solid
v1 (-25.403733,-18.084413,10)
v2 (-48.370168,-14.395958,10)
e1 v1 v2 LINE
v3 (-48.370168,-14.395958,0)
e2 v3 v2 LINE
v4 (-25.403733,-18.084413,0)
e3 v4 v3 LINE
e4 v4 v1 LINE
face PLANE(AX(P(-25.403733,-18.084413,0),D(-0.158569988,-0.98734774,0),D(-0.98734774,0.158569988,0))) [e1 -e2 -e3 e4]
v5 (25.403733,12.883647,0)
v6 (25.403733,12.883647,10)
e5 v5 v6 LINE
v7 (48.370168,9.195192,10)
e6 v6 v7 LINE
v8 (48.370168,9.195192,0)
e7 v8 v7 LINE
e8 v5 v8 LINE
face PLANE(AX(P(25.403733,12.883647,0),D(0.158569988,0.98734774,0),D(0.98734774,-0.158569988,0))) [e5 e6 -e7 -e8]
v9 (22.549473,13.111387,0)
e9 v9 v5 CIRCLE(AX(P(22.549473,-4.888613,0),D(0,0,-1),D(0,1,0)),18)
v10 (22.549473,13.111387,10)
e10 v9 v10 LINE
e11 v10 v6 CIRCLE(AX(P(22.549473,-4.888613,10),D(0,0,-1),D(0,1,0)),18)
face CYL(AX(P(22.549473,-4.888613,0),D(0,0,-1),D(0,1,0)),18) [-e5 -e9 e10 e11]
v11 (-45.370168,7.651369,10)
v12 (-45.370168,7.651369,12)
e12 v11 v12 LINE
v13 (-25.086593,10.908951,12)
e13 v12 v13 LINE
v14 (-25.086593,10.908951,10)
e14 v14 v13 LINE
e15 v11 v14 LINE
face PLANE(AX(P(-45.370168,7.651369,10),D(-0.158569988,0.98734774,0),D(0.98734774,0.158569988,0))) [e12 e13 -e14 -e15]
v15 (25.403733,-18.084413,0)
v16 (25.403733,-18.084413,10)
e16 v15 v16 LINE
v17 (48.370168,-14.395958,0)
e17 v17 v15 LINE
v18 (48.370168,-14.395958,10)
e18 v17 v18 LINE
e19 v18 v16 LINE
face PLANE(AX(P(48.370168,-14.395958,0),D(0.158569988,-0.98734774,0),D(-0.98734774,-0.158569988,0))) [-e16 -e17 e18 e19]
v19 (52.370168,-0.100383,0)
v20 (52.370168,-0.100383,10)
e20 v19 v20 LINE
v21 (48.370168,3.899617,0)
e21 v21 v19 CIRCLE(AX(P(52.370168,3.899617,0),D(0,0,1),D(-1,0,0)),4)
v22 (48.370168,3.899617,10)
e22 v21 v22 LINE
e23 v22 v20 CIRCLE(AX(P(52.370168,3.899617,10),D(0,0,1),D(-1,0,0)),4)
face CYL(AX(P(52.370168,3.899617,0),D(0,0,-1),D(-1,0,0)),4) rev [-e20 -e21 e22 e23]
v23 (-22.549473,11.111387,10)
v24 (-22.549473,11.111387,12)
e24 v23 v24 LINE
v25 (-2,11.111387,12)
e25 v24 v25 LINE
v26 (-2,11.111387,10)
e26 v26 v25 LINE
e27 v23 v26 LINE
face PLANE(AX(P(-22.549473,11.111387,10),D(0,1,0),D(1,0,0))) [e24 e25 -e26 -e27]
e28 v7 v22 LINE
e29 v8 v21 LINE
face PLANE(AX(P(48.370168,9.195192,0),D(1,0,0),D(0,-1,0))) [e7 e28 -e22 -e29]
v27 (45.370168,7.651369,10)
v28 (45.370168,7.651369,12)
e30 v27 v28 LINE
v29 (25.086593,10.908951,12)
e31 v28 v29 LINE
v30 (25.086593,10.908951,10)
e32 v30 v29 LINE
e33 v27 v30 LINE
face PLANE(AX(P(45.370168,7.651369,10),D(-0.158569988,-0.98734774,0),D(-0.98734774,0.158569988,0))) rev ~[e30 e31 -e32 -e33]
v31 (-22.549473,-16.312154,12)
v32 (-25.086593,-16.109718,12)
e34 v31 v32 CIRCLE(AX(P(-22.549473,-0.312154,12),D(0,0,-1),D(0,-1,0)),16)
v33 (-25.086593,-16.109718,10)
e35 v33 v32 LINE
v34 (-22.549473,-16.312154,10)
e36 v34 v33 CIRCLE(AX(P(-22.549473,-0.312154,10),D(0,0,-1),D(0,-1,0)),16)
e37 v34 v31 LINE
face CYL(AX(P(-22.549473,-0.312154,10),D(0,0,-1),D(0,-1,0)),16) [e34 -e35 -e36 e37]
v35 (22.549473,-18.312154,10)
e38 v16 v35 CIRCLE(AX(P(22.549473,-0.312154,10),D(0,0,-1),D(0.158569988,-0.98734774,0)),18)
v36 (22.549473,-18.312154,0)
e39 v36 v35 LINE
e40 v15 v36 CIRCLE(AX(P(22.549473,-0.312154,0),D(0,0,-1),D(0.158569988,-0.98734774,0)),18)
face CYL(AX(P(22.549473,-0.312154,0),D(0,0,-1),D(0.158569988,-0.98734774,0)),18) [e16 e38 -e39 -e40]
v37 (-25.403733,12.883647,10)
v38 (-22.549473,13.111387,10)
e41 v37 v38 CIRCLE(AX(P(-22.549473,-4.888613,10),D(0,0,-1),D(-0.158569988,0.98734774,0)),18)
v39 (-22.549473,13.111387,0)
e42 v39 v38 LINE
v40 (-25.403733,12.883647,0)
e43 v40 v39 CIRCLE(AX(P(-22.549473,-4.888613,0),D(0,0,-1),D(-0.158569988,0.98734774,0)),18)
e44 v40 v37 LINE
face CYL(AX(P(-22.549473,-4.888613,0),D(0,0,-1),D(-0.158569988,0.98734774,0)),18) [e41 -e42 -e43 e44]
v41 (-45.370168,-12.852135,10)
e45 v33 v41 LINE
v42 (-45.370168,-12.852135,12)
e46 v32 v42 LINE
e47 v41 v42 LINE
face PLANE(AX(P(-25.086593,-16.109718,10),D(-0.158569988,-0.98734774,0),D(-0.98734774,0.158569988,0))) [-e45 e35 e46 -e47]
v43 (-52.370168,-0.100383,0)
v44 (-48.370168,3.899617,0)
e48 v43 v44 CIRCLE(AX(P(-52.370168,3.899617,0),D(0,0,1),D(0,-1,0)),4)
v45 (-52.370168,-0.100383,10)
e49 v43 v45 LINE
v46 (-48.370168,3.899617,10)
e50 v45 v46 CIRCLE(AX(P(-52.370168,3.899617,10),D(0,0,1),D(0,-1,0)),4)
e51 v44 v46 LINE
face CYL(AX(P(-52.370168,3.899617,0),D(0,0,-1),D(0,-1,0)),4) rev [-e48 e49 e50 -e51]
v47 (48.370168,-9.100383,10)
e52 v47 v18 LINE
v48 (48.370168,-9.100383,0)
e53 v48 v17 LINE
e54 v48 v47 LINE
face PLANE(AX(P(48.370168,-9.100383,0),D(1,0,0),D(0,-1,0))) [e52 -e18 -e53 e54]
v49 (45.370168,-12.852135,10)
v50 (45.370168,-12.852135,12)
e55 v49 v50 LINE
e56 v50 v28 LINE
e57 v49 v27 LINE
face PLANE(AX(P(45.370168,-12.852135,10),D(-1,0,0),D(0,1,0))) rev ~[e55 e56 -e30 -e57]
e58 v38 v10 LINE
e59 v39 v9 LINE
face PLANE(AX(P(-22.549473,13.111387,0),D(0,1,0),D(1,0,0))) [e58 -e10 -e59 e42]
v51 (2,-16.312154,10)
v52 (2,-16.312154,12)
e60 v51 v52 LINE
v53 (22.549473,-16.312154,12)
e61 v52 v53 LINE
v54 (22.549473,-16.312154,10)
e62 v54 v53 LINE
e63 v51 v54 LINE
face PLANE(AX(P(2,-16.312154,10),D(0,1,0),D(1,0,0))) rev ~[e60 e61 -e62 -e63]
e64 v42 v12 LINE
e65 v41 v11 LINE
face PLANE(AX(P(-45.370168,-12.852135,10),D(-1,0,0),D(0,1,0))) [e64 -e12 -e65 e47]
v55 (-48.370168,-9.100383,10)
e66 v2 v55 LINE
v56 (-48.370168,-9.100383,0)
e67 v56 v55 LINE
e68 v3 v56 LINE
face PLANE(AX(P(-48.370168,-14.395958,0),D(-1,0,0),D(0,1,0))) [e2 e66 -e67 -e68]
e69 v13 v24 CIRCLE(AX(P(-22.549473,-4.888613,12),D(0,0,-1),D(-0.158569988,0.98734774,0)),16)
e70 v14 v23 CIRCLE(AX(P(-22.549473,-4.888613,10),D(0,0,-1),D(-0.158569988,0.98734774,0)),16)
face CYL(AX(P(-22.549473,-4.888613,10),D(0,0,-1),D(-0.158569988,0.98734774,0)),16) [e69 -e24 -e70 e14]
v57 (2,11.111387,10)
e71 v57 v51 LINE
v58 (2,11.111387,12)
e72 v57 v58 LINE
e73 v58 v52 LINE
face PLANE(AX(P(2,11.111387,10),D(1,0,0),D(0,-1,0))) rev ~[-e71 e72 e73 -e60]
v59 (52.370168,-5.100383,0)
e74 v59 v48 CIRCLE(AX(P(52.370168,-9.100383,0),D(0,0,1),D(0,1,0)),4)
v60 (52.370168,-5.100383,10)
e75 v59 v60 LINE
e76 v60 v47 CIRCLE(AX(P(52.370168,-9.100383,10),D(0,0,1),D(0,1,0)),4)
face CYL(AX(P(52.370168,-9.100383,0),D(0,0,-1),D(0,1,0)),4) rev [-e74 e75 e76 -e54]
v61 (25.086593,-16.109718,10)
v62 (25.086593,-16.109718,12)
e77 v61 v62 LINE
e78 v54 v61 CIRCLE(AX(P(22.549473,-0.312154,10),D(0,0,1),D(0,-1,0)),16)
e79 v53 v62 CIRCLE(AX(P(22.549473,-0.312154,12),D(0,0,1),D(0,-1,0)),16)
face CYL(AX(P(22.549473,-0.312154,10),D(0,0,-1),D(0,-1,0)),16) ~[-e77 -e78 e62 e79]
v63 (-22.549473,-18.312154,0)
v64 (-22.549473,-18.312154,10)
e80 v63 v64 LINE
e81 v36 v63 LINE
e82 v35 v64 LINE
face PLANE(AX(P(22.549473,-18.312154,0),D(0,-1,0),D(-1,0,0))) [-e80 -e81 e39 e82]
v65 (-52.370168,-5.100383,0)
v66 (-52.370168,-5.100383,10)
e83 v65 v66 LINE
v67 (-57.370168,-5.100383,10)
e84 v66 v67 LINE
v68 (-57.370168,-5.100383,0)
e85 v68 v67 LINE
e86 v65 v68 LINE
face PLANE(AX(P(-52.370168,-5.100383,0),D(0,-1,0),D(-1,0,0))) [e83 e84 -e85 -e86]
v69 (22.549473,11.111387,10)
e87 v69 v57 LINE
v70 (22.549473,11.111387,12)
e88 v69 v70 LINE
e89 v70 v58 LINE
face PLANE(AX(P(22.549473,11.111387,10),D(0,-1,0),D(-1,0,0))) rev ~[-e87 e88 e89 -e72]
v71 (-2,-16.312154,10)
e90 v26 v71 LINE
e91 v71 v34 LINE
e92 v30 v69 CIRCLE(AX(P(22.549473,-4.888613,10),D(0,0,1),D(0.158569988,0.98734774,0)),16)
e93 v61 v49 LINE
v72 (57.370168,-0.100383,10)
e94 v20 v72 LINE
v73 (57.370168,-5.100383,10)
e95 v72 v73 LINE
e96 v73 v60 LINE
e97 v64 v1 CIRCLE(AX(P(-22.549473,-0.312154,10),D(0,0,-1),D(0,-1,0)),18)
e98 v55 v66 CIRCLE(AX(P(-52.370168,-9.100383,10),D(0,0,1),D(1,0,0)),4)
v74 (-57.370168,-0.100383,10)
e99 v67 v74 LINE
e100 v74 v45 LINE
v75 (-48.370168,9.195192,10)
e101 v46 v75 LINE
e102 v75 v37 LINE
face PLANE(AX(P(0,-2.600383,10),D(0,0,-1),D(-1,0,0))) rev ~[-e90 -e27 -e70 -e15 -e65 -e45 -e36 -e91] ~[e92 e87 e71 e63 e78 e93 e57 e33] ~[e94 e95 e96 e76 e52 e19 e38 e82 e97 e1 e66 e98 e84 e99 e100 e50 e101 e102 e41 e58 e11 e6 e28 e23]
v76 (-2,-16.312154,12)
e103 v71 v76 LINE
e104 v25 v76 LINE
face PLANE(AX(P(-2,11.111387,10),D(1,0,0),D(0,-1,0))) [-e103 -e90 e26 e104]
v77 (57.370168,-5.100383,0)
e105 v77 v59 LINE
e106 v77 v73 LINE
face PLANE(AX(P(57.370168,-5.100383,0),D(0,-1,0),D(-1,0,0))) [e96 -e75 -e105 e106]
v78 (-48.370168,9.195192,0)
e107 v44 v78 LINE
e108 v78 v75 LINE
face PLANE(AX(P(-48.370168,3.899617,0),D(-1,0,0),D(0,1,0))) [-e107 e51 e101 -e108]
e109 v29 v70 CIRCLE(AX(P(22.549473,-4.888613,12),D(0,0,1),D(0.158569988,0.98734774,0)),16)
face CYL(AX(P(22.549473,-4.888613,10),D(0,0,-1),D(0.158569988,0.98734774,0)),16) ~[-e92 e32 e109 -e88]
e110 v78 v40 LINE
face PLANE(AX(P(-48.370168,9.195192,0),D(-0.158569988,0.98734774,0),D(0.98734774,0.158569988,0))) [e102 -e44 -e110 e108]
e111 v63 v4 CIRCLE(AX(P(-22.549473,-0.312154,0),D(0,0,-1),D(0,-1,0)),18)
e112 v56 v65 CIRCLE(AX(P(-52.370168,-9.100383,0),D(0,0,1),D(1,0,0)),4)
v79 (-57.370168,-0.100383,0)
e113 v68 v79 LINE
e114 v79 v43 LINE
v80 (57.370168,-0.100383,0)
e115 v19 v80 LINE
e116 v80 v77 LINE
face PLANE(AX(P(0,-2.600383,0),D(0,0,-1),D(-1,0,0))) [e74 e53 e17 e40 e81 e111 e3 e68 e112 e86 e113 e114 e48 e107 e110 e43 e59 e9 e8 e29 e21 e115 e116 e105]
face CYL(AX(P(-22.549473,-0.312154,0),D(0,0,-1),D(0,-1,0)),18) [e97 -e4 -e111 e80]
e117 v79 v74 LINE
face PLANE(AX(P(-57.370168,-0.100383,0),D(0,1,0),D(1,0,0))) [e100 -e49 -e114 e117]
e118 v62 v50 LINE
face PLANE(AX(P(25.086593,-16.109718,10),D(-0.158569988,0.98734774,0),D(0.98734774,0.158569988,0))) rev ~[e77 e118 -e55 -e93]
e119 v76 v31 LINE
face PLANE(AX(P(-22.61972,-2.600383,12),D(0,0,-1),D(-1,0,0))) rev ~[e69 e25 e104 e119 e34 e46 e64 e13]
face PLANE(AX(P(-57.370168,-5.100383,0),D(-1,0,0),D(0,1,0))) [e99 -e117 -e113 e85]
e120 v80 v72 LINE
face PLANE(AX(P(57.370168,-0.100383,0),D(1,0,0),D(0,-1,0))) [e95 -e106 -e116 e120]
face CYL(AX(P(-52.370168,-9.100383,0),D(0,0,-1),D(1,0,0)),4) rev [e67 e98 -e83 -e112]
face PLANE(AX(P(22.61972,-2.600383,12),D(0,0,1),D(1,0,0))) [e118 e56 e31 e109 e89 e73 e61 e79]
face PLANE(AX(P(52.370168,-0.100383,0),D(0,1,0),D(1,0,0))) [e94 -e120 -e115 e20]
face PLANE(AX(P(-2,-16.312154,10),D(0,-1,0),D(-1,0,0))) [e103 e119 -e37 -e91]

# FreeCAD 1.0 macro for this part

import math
import FreeCAD as App
import Part
import Sketcher

V = App.Vector

doc = App.newDocument("Part")
body = doc.addObject("PartDesign::Body", "Body")

# Sketch on XY plane
sketch1 = doc.addObject("Sketcher::SketchObject", "Sketch")
body.addObject(sketch1)
sketch1.AttachmentSupport = (doc.XY_Plane, [""])
sketch1.MapMode = "FlatFace"
sketch1.addGeometry([
    Part.LineSegment(V(-57.4, -5.1, 0), V(-52.4, -5.1, 0)),  # 0
    Part.ArcOfCircle(Part.Circle(V(-52.4, -9.1, 0), V(0, 0, 1), 4), math.radians(0), math.radians(90)),  # 1
    Part.LineSegment(V(-48.4, -9.1, 0), V(-48.4, -14.4, 0)),  # 2
    Part.LineSegment(V(-48.4, -14.4, 0), V(-25.4, -18.1, 0)),  # 3
    Part.ArcOfCircle(Part.Circle(V(-22.5, -0.3, 0), V(0, 0, 1), 18), math.radians(-99.12), math.radians(-90)),  # 4
    Part.LineSegment(V(-22.5, -18.3, 0), V(22.5, -18.3, 0)),  # 5
    Part.ArcOfCircle(Part.Circle(V(22.5, -0.3, 0), V(0, 0, 1), 18), math.radians(-90), math.radians(-80.88)),  # 6
    Part.LineSegment(V(25.4, -18.1, 0), V(48.4, -14.4, 0)),  # 7
    Part.LineSegment(V(48.4, -14.4, 0), V(48.4, -9.1, 0)),  # 8
    Part.ArcOfCircle(Part.Circle(V(52.4, -9.1, 0), V(0, 0, 1), 4), math.radians(90), math.radians(180)),  # 9
    Part.LineSegment(V(52.4, -5.1, 0), V(57.4, -5.1, 0)),  # 10
    Part.LineSegment(V(57.4, -5.1, 0), V(57.4, -0.1, 0)),  # 11
    Part.LineSegment(V(57.4, -0.1, 0), V(52.4, -0.1, 0)),  # 12
    Part.ArcOfCircle(Part.Circle(V(52.4, 3.9, 0), V(0, 0, 1), 4), math.radians(180), math.radians(270)),  # 13
    Part.LineSegment(V(48.4, 3.9, 0), V(48.4, 9.2, 0)),  # 14
    Part.LineSegment(V(48.4, 9.2, 0), V(25.4, 12.9, 0)),  # 15
    Part.ArcOfCircle(Part.Circle(V(22.5, -4.9, 0), V(0, 0, 1), 18), math.radians(80.88), math.radians(90)),  # 16
    Part.LineSegment(V(22.5, 13.1, 0), V(-22.5, 13.1, 0)),  # 17
    Part.ArcOfCircle(Part.Circle(V(-22.5, -4.9, 0), V(0, 0, 1), 18), math.radians(90), math.radians(99.12)),  # 18
    Part.LineSegment(V(-25.4, 12.9, 0), V(-48.4, 9.2, 0)),  # 19
    Part.LineSegment(V(-48.4, 9.2, 0), V(-48.4, 3.9, 0)),  # 20
    Part.ArcOfCircle(Part.Circle(V(-52.4, 3.9, 0), V(0, 0, 1), 4), math.radians(-90), math.radians(0)),  # 21
    Part.LineSegment(V(-52.4, -0.1, 0), V(-57.4, -0.1, 0)),  # 22
    Part.LineSegment(V(-57.4, -0.1, 0), V(-57.4, -5.1, 0)),  # 23
], False)
sketch1.addConstraint([
    Sketcher.Constraint("Tangent", 0, 2, 1, 2),
    Sketcher.Constraint("Tangent", 1, 1, 2, 1),
    Sketcher.Constraint("Coincident", 2, 2, 3, 1),
    Sketcher.Constraint("Tangent", 3, 2, 4, 1),
    Sketcher.Constraint("Tangent", 4, 2, 5, 1),
    Sketcher.Constraint("Tangent", 5, 2, 6, 1),
    Sketcher.Constraint("Tangent", 6, 2, 7, 1),
    Sketcher.Constraint("Coincident", 7, 2, 8, 1),
    Sketcher.Constraint("Tangent", 8, 2, 9, 2),
    Sketcher.Constraint("Tangent", 9, 1, 10, 1),
    Sketcher.Constraint("Coincident", 10, 2, 11, 1),
    Sketcher.Constraint("Coincident", 11, 2, 12, 1),
    Sketcher.Constraint("Tangent", 12, 2, 13, 2),
    Sketcher.Constraint("Tangent", 13, 1, 14, 1),
    Sketcher.Constraint("Coincident", 14, 2, 15, 1),
    Sketcher.Constraint("Tangent", 15, 2, 16, 1),
    Sketcher.Constraint("Tangent", 16, 2, 17, 1),
    Sketcher.Constraint("Tangent", 17, 2, 18, 1),
    Sketcher.Constraint("Tangent", 18, 2, 19, 1),
    Sketcher.Constraint("Coincident", 19, 2, 20, 1),
    Sketcher.Constraint("Tangent", 20, 2, 21, 2),
    Sketcher.Constraint("Tangent", 21, 1, 22, 1),
    Sketcher.Constraint("Coincident", 22, 2, 23, 1),
    Sketcher.Constraint("Coincident", 23, 2, 0, 1),
    Sketcher.Constraint("Horizontal", 0),
    Sketcher.Constraint("Vertical", 2),
    Sketcher.Constraint("Horizontal", 5),
    Sketcher.Constraint("Vertical", 8),
    Sketcher.Constraint("Horizontal", 10),
    Sketcher.Constraint("Vertical", 11),
    Sketcher.Constraint("Horizontal", 12),
    Sketcher.Constraint("Vertical", 14),
    Sketcher.Constraint("Horizontal", 17),
    Sketcher.Constraint("Vertical", 20),
    Sketcher.Constraint("Horizontal", 22),
    Sketcher.Constraint("Vertical", 23),
    Sketcher.Constraint("Equal", 4, 6),
    Sketcher.Constraint("Equal", 1, 9),
    Sketcher.Constraint("Equal", 9, 13),
    Sketcher.Constraint("Equal", 6, 16),
    Sketcher.Constraint("Equal", 16, 18),
    Sketcher.Constraint("Equal", 13, 21),
    Sketcher.Constraint("Symmetric", 1, 3, 9, 3, -2),
    Sketcher.Constraint("Symmetric", 13, 3, 21, 3, -2),
    Sketcher.Constraint("Symmetric", 3, 2, 6, 2, -2),
    Sketcher.Constraint("Symmetric", 15, 2, 18, 2, -2),
    Sketcher.Constraint("Parallel", 3, 15),
    Sketcher.Constraint("Vertical", 9, 3, 13, 3),
    Sketcher.Constraint("Vertical", 6, 3, 16, 3),
    Sketcher.Constraint("Equal", 0, 10),
    Sketcher.Constraint("Equal", 22, 11),
    Sketcher.Constraint("Equal", 8, 14),
    Sketcher.Constraint("Radius", 1, 4.0),
    Sketcher.Constraint("Radius", 4, 18.0),
    Sketcher.Constraint("DistanceX", 0, 1, 0, 2, 5.0),
    Sketcher.Constraint("DistanceY", 3, 2, 18, 3, 13.1958),
    Sketcher.Constraint("DistanceX", 5, 1, 5, 2, 45.098946),
    Sketcher.Constraint("DistanceY", 2, 2, 2, 1, 5.295575),
    Sketcher.Constraint("DistanceX", 1, 3, -1, 1, 52.370168),
    Sketcher.Constraint("DistanceY", 2, 2, -1, 1, 14.395958),
])
pad1 = doc.addObject("PartDesign::Pad", "Pad")
body.addObject(pad1)
pad1.Profile = sketch1
pad1.Length = 10

# Sketch on XY plane
sketch2 = doc.addObject("Sketcher::SketchObject", "Sketch001")
body.addObject(sketch2)
sketch2.AttachmentSupport = (doc.XY_Plane, [""])
sketch2.MapMode = "FlatFace"
sketch2.AttachmentOffset = App.Placement(V(0, 0, 10), App.Rotation())
sketch2.addGeometry([
    Part.LineSegment(V(-2, -16.3, 0), V(-2, 11.1, 0)),  # 0
    Part.LineSegment(V(-2, 11.1, 0), V(-22.5, 11.1, 0)),  # 1
    Part.ArcOfCircle(Part.Circle(V(-22.5, -4.9, 0), V(0, 0, 1), 16), math.radians(90), math.radians(99.12)),  # 2
    Part.LineSegment(V(-25.1, 10.9, 0), V(-45.4, 7.7, 0)),  # 3
    Part.LineSegment(V(-45.4, 7.7, 0), V(-45.4, -12.9, 0)),  # 4
    Part.LineSegment(V(-45.4, -12.9, 0), V(-25.1, -16.1, 0)),  # 5
    Part.ArcOfCircle(Part.Circle(V(-22.5, -0.3, 0), V(0, 0, 1), 16), math.radians(-99.12), math.radians(-90)),  # 6
    Part.LineSegment(V(-22.5, -16.3, 0), V(-2, -16.3, 0)),  # 7
    Part.LineSegment(V(2, 11.1, 0), V(2, -16.3, 0)),  # 8
    Part.LineSegment(V(2, -16.3, 0), V(22.5, -16.3, 0)),  # 9
    Part.ArcOfCircle(Part.Circle(V(22.5, -0.3, 0), V(0, 0, 1), 16), math.radians(-90), math.radians(-80.88)),  # 10
    Part.LineSegment(V(25.1, -16.1, 0), V(45.4, -12.9, 0)),  # 11
    Part.LineSegment(V(45.4, -12.9, 0), V(45.4, 7.7, 0)),  # 12
    Part.LineSegment(V(45.4, 7.7, 0), V(25.1, 10.9, 0)),  # 13
    Part.ArcOfCircle(Part.Circle(V(22.5, -4.9, 0), V(0, 0, 1), 16), math.radians(80.88), math.radians(90)),  # 14
    Part.LineSegment(V(22.5, 11.1, 0), V(2, 11.1, 0)),  # 15
], False)
sketch2.addConstraint([
    Sketcher.Constraint("Coincident", 0, 2, 1, 1),
    Sketcher.Constraint("Tangent", 1, 2, 2, 1),
    Sketcher.Constraint("Tangent", 2, 2, 3, 1),
    Sketcher.Constraint("Coincident", 3, 2, 4, 1),
    Sketcher.Constraint("Coincident", 4, 2, 5, 1),
    Sketcher.Constraint("Tangent", 5, 2, 6, 1),
    Sketcher.Constraint("Tangent", 6, 2, 7, 1),
    Sketcher.Constraint("Coincident", 7, 2, 0, 1),
    Sketcher.Constraint("Coincident", 8, 2, 9, 1),
    Sketcher.Constraint("Tangent", 9, 2, 10, 1),
    Sketcher.Constraint("Tangent", 10, 2, 11, 1),
    Sketcher.Constraint("Coincident", 11, 2, 12, 1),
    Sketcher.Constraint("Coincident", 12, 2, 13, 1),
    Sketcher.Constraint("Tangent", 13, 2, 14, 1),
    Sketcher.Constraint("Tangent", 14, 2, 15, 1),
    Sketcher.Constraint("Coincident", 15, 2, 8, 1),
    Sketcher.Constraint("Vertical", 0),
    Sketcher.Constraint("Horizontal", 1),
    Sketcher.Constraint("Vertical", 4),
    Sketcher.Constraint("Horizontal", 7),
    Sketcher.Constraint("Vertical", 8),
    Sketcher.Constraint("Horizontal", 9),
    Sketcher.Constraint("Vertical", 12),
    Sketcher.Constraint("Horizontal", 15),
    Sketcher.Constraint("Equal", 2, 6),
    Sketcher.Constraint("Equal", 6, 10),
    Sketcher.Constraint("Equal", 10, 14),
    Sketcher.Constraint("Symmetric", 6, 3, 10, 3, -2),
    Sketcher.Constraint("Symmetric", 2, 3, 14, 3, -2),
    Sketcher.Constraint("Symmetric", 4, 2, 11, 2, -2),
    Sketcher.Constraint("Parallel", 3, 11),
    Sketcher.Constraint("Parallel", 5, 13),
    Sketcher.Constraint("Vertical", 2, 3, 6, 3),
    Sketcher.Constraint("Equal", 7, 9),
    Sketcher.Constraint("Radius", 2, 16.0),
    Sketcher.Constraint("DistanceX", 0, 2, -1, 1, 2.0),
    Sketcher.Constraint("DistanceY", 0, 1, 0, 2, 27.423541),
    Sketcher.Constraint("DistanceX", 1, 2, 1, 1, 20.549473),
    Sketcher.Constraint("DistanceY", 4, 2, 4, 1, 20.503505),
    Sketcher.Constraint("DistanceY", -1, 1, 2, 2, 10.908951),
    Sketcher.Constraint("DistanceX", 3, 2, -1, 1, 45.370168),
])
pad2 = doc.addObject("PartDesign::Pad", "Pad001")
body.addObject(pad2)
pad2.Profile = sketch2
pad2.Length = 2

doc.recompute()
